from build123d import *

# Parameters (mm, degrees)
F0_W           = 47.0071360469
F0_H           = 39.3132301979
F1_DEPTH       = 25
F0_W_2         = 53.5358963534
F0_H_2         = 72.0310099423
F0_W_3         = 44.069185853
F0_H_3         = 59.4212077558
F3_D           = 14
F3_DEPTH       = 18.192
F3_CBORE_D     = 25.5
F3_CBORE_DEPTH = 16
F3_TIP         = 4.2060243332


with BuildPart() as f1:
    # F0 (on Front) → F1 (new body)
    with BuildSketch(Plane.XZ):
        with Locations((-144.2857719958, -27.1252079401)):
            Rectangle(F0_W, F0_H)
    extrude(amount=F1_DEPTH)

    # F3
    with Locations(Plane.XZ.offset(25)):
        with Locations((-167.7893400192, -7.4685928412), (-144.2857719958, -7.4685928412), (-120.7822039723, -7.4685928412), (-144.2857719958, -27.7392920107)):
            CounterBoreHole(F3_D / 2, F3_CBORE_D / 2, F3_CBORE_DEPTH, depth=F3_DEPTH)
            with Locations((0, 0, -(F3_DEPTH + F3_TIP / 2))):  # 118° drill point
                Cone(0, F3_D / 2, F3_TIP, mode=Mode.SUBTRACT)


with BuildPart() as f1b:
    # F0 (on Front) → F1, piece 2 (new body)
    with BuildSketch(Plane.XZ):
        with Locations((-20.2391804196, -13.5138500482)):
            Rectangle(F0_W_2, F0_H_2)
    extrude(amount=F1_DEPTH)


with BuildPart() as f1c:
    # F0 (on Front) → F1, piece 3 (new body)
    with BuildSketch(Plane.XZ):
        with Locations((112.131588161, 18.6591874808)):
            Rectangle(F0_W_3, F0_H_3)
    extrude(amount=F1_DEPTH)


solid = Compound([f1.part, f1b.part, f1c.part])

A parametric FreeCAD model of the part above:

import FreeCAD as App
import Part
import Sketcher
Q = App.Units.Quantity

doc = App.newDocument("Part")
body = doc.addObject("PartDesign::Body", "Body")

# Sketch on XZ plane
sketch1 = body.newObject("Sketcher::SketchObject", "Sketch")
sketch1.AttachmentSupport = (doc.getObject("XZ_Plane"), [""])
sketch1.MapMode = "FlatFace"
sketch1.addGeometry(Part.LineSegment(App.Vector(-168, -7, 0), App.Vector(-168, -47, 0)), False)
sketch1.addGeometry(Part.LineSegment(App.Vector(-168, -47, 0), App.Vector(-121, -47, 0)), False)
sketch1.addGeometry(Part.LineSegment(App.Vector(-121, -47, 0), App.Vector(-121, -7, 0)), False)
sketch1.addGeometry(Part.LineSegment(App.Vector(-121, -7, 0), App.Vector(-168, -7, 0)), False)
sketch1.addConstraint(Sketcher.Constraint("Coincident", 0, 2, 1, 1))
sketch1.addConstraint(Sketcher.Constraint("Coincident", 1, 2, 2, 1))
sketch1.addConstraint(Sketcher.Constraint("Coincident", 2, 2, 3, 1))
sketch1.addConstraint(Sketcher.Constraint("Coincident", 3, 2, 0, 1))
sketch1.addConstraint(Sketcher.Constraint("Vertical", 0))
sketch1.addConstraint(Sketcher.Constraint("Horizontal", 1))
sketch1.addConstraint(Sketcher.Constraint("Vertical", 2))
sketch1.addConstraint(Sketcher.Constraint("Horizontal", 3))
sketch1.addConstraint(Sketcher.Constraint("DistanceY", 0, 2, 0, 1, Q("39.31323 mm")))
sketch1.addConstraint(Sketcher.Constraint("DistanceX", 1, 1, 1, 2, Q("47.007136 mm")))
sketch1.addConstraint(Sketcher.Constraint("DistanceX", 0, 2, -1, 1, Q("167.78934 mm")))
sketch1.addConstraint(Sketcher.Constraint("DistanceY", 0, 2, -1, 1, Q("46.781823 mm")))
pad1 = body.newObject("PartDesign::Pad", "Pad")
pad1.Profile = sketch1
pad1.Length = 25

# Sketch on XZ plane
sketch2 = body.newObject("Sketcher::SketchObject", "Sketch001")
sketch2.AttachmentSupport = (doc.getObject("XZ_Plane"), [""])
sketch2.MapMode = "FlatFace"
sketch2.AttachmentOffset = App.Placement(App.Vector(0, 0, 25), App.Rotation())
sketch2.addGeometry(Part.Circle(App.Vector(-168, -7, 0), App.Vector(0, 0, 1), 7), False)
sketch2.addGeometry(Part.Circle(App.Vector(-144, -7, 0), App.Vector(0, 0, 1), 7), False)
sketch2.addGeometry(Part.Circle(App.Vector(-121, -7, 0), App.Vector(0, 0, 1), 7), False)
sketch2.addGeometry(Part.Circle(App.Vector(-144, -28, 0), App.Vector(0, 0, 1), 7), False)
sketch2.addConstraint(Sketcher.Constraint("Equal", 0, 1))
sketch2.addConstraint(Sketcher.Constraint("Equal", 1, 2))
sketch2.addConstraint(Sketcher.Constraint("Equal", 2, 3))
sketch2.addConstraint(Sketcher.Constraint("Horizontal", 0, 3, 1, 3))
sketch2.addConstraint(Sketcher.Constraint("Horizontal", 1, 3, 2, 3))
sketch2.addConstraint(Sketcher.Constraint("Vertical", 1, 3, 3, 3))
sketch2.addConstraint(Sketcher.Constraint("Diameter", 0, Q("14 mm")))
sketch2.addConstraint(Sketcher.Constraint("DistanceY", 3, 3, 1, 3, Q("20.270699 mm")))
sketch2.addConstraint(Sketcher.Constraint("DistanceX", 0, 3, -1, 1, Q("167.78934 mm")))
sketch2.addConstraint(Sketcher.Constraint("DistanceX", 1, 3, -1, 1, Q("144.285772 mm")))
sketch2.addConstraint(Sketcher.Constraint("DistanceX", 1, 3, 2, 3, Q("23.503568 mm")))
sketch2.addConstraint(Sketcher.Constraint("DistanceY", 0, 3, -1, 1, Q("7.468593 mm")))
doc.recompute()
hole = body.newObject("PartDesign::Hole", "Hole")
hole.Profile = sketch2
hole.ThreadType = "None"
hole.Diameter = 14
hole.DepthType = "Dimension"
hole.Depth = 18.192
hole.DrillPoint = "Angled"
hole.DrillPointAngle = 118
hole.HoleCutType = "Counterbore"
hole.HoleCutDiameter = 25.5
hole.HoleCutDepth = 16
body2 = doc.addObject("PartDesign::Body", "Body001")

# Sketch on XZ plane
sketch3 = body2.newObject("Sketcher::SketchObject", "Sketch002")
sketch3.AttachmentSupport = (doc.getObject("XZ_Plane001"), [""])
sketch3.MapMode = "FlatFace"
sketch3.addGeometry(Part.LineSegment(App.Vector(-47, 23, 0), App.Vector(-47, -50, 0)), False)
sketch3.addGeometry(Part.LineSegment(App.Vector(-47, -50, 0), App.Vector(7, -50, 0)), False)
sketch3.addGeometry(Part.LineSegment(App.Vector(7, -50, 0), App.Vector(7, 23, 0)), False)
sketch3.addGeometry(Part.LineSegment(App.Vector(7, 23, 0), App.Vector(-47, 23, 0)), False)
sketch3.addConstraint(Sketcher.Constraint("Coincident", 0, 2, 1, 1))
sketch3.addConstraint(Sketcher.Constraint("Coincident", 1, 2, 2, 1))
sketch3.addConstraint(Sketcher.Constraint("Coincident", 2, 2, 3, 1))
sketch3.addConstraint(Sketcher.Constraint("Coincident", 3, 2, 0, 1))
sketch3.addConstraint(Sketcher.Constraint("Vertical", 0))
sketch3.addConstraint(Sketcher.Constraint("Horizontal", 1))
sketch3.addConstraint(Sketcher.Constraint("Vertical", 2))
sketch3.addConstraint(Sketcher.Constraint("Horizontal", 3))
sketch3.addConstraint(Sketcher.Constraint("DistanceY", 0, 2, 0, 1, Q("72.03101 mm")))
sketch3.addConstraint(Sketcher.Constraint("DistanceX", 1, 1, 1, 2, Q("53.535896 mm")))
sketch3.addConstraint(Sketcher.Constraint("DistanceX", 0, 2, -1, 1, Q("47.007129 mm")))
sketch3.addConstraint(Sketcher.Constraint("DistanceY", 0, 2, -1, 1, Q("49.529355 mm")))
pad2 = body2.newObject("PartDesign::Pad", "Pad001")
pad2.Profile = sketch3
pad2.Length = 25
body3 = doc.addObject("PartDesign::Body", "Body002")

# Sketch on XZ plane
sketch4 = body3.newObject("Sketcher::SketchObject", "Sketch003")
sketch4.AttachmentSupport = (doc.getObject("XZ_Plane002"), [""])
sketch4.MapMode = "FlatFace"
sketch4.addGeometry(Part.LineSegment(App.Vector(90, 48, 0), App.Vector(90, -11, 0)), False)
sketch4.addGeometry(Part.LineSegment(App.Vector(90, -11, 0), App.Vector(134, -11, 0)), False)
sketch4.addGeometry(Part.LineSegment(App.Vector(134, -11, 0), App.Vector(134, 48, 0)), False)
sketch4.addGeometry(Part.LineSegment(App.Vector(134, 48, 0), App.Vector(90, 48, 0)), False)
sketch4.addConstraint(Sketcher.Constraint("Coincident", 0, 2, 1, 1))
sketch4.addConstraint(Sketcher.Constraint("Coincident", 1, 2, 2, 1))
sketch4.addConstraint(Sketcher.Constraint("Coincident", 2, 2, 3, 1))
sketch4.addConstraint(Sketcher.Constraint("Coincident", 3, 2, 0, 1))
sketch4.addConstraint(Sketcher.Constraint("Vertical", 0))
sketch4.addConstraint(Sketcher.Constraint("Horizontal", 1))
sketch4.addConstraint(Sketcher.Constraint("Vertical", 2))
sketch4.addConstraint(Sketcher.Constraint("Horizontal", 3))
sketch4.addConstraint(Sketcher.Constraint("DistanceX", 1, 1, 1, 2, Q("44.069186 mm")))
sketch4.addConstraint(Sketcher.Constraint("DistanceY", 0, 2, 0, 1, Q("59.421208 mm")))
sketch4.addConstraint(Sketcher.Constraint("DistanceX", -1, 1, 1, 2, Q("134.166181 mm")))
sketch4.addConstraint(Sketcher.Constraint("DistanceY", -1, 1, 2, 2, Q("48.369791 mm")))
pad3 = body3.newObject("PartDesign::Pad", "Pad002")
pad3.Profile = sketch4
pad3.Length = 25

doc.recompute()
